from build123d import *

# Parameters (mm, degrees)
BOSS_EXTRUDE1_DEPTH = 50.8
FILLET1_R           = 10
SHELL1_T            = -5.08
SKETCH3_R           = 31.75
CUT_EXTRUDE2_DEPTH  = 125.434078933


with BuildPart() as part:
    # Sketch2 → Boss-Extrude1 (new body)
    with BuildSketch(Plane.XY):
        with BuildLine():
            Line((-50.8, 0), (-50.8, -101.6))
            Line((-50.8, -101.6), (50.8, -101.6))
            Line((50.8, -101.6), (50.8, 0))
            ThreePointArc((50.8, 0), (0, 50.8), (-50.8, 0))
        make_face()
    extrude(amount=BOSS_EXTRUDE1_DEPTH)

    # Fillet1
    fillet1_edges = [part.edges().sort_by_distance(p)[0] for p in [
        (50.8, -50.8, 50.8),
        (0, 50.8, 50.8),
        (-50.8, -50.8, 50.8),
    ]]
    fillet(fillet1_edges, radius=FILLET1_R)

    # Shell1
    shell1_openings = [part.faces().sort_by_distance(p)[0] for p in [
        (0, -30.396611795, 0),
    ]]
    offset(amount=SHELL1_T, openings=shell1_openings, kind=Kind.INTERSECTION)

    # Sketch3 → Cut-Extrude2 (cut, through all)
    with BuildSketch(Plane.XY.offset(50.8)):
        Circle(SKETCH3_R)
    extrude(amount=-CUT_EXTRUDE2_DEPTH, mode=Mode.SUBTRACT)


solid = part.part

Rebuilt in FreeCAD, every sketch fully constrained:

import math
import FreeCAD as App
import Part
import Sketcher

V = App.Vector
Q = App.Units.Quantity


def edges_at(feature, points):
    """Names of the edges that pass closest to the given points."""
    edges = feature.Shape.Edges
    near = lambda p: min(range(len(edges)), key=lambda i: edges[i].distToShape(Part.Vertex(*p))[0])
    return sorted({f"Edge{near(p) + 1}" for p in points})


def faces_at(feature, points):
    """Names of the faces that lie closest to the given points."""
    faces = feature.Shape.Faces
    near = lambda p: min(range(len(faces)), key=lambda i: faces[i].distToShape(Part.Vertex(*p))[0])
    return sorted({f"Face{near(p) + 1}" for p in points})

doc = App.newDocument("Part")
body = doc.addObject("PartDesign::Body", "Body")

sketch1 = body.newObject("Sketcher::SketchObject", "Sketch")
sketch1.AttachmentSupport = (doc.getObject("XY_Plane"), [""])
sketch1.MapMode = "FlatFace"
sketch1.addGeometry(Part.LineSegment(V(-51, 0, 0), V(-51, -102, 0)), False)
sketch1.addGeometry(Part.LineSegment(V(-51, -102, 0), V(51, -102, 0)), False)
sketch1.addGeometry(Part.LineSegment(V(51, -102, 0), V(51, 0, 0)), False)
sketch1.addGeometry(Part.ArcOfCircle(Part.Circle(V(0, 0, 0), V(0, 0, 1), 51), math.radians(0), math.radians(180)), False)
sketch1.addConstraint(Sketcher.Constraint("Coincident", 0, 2, 1, 1))
sketch1.addConstraint(Sketcher.Constraint("Coincident", 1, 2, 2, 1))
sketch1.addConstraint(Sketcher.Constraint("Tangent", 2, 2, 3, 1))
sketch1.addConstraint(Sketcher.Constraint("Tangent", 3, 2, 0, 1))
sketch1.addConstraint(Sketcher.Constraint("Vertical", 0))
sketch1.addConstraint(Sketcher.Constraint("Horizontal", 1))
sketch1.addConstraint(Sketcher.Constraint("Vertical", 2))
sketch1.addConstraint(Sketcher.Constraint("Coincident", 3, 3, -1, 1))
sketch1.addConstraint(Sketcher.Constraint("Equal", 1, 0))
sketch1.addConstraint(Sketcher.Constraint("Radius", 3, Q("2 in")))
pad1 = body.newObject("PartDesign::Pad", "Pad")
pad1.Profile = sketch1
pad1.Length = Q("2 in")
doc.recompute()

fillet = body.newObject("PartDesign::Fillet", "Fillet")
fillet.Base = (pad1, edges_at(pad1, [(50.8, -50.8, 50.8), (0, 50.8, 50.8), (-50.8, -50.8, 50.8)]))
fillet.Radius = 10
doc.recompute()

thickness = body.newObject("PartDesign::Thickness", "Thickness")
thickness.Base = (fillet, faces_at(fillet, [(0, -25.4, 0)]))
thickness.Value = Q("0.2 in")
thickness.Reversed = True
thickness.Join = "Intersection"

sketch2 = body.newObject("Sketcher::SketchObject", "Sketch001")
sketch2.AttachmentSupport = (doc.getObject("XY_Plane"), [""])
sketch2.MapMode = "FlatFace"
sketch2.AttachmentOffset = App.Placement(V(0, 0, 2 * 25.4), App.Rotation())
sketch2.addGeometry(Part.Circle(V(0, 0, 0), V(0, 0, 1), 32), False)
sketch2.addConstraint(Sketcher.Constraint("Coincident", 0, 3, -1, 1))
sketch2.addConstraint(Sketcher.Constraint("Diameter", 0, Q("2.5 in")))
pocket1 = body.newObject("PartDesign::Pocket", "Pocket")
pocket1.Profile = sketch2
pocket1.Type = "ThroughAll"

doc.recompute()
